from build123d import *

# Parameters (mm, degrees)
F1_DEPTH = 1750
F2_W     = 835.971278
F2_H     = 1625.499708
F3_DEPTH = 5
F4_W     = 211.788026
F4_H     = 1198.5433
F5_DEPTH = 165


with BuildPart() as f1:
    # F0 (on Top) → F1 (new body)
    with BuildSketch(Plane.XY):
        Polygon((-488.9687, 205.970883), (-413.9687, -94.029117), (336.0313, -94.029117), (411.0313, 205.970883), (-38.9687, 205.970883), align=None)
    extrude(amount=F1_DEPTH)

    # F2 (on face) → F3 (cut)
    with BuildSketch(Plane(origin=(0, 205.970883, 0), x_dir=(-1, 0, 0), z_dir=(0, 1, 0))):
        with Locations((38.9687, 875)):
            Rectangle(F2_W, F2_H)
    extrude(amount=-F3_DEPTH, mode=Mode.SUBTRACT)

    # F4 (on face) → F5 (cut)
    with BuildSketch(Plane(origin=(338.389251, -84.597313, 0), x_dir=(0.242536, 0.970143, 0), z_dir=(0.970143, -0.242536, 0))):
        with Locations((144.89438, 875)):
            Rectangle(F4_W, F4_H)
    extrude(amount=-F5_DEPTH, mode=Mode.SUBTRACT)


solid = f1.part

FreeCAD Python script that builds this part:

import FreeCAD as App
import Part
import Sketcher

V = App.Vector
Q = App.Units.Quantity

doc = App.newDocument("Part")
body = doc.addObject("PartDesign::Body", "Body")

sketch1 = body.newObject("Sketcher::SketchObject", "Sketch")
sketch1.AttachmentSupport = (doc.getObject("XY_Plane"), [""])
sketch1.MapMode = "FlatFace"
sketch1.addGeometry(Part.LineSegment(V(-489, 206, 0), V(-414, -94, 0)), False)
sketch1.addGeometry(Part.LineSegment(V(-414, -94, 0), V(336, -94, 0)), False)
sketch1.addGeometry(Part.LineSegment(V(336, -94, 0), V(411, 206, 0)), False)
sketch1.addGeometry(Part.LineSegment(V(411, 206, 0), V(-489, 206, 0)), False)
sketch1.addConstraint(Sketcher.Constraint("Coincident", 0, 2, 1, 1))
sketch1.addConstraint(Sketcher.Constraint("Coincident", 1, 2, 2, 1))
sketch1.addConstraint(Sketcher.Constraint("Coincident", 2, 2, 3, 1))
sketch1.addConstraint(Sketcher.Constraint("Coincident", 3, 2, 0, 1))
sketch1.addConstraint(Sketcher.Constraint("Horizontal", 1))
sketch1.addConstraint(Sketcher.Constraint("Horizontal", 3))
sketch1.addConstraint(Sketcher.Constraint("Equal", 0, 2))
sketch1.addConstraint(Sketcher.Constraint("DistanceX", 1, 1, 1, 2, Q("750 mm")))
sketch1.addConstraint(Sketcher.Constraint("DistanceX", 3, 2, 3, 1, Q("900 mm")))
sketch1.addConstraint(Sketcher.Constraint("DistanceY", 1, 2, 2, 2, Q("300 mm")))
sketch1.addConstraint(Sketcher.Constraint("DistanceX", 0, 2, -1, 1, Q("413.9687 mm")))
sketch1.addConstraint(Sketcher.Constraint("DistanceY", 0, 2, -1, 1, Q("94.029117 mm")))
pad1 = body.newObject("PartDesign::Pad", "Pad")
pad1.Profile = sketch1
pad1.Length = 1750

sketch2 = body.newObject("Sketcher::SketchObject", "Sketch001")
sketch2.AttachmentSupport = (doc.getObject("XZ_Plane"), [""])
sketch2.MapMode = "FlatFace"
sketch2.AttachmentOffset = App.Placement(V(0, 0, -205.970883), App.Rotation())
sketch2.addGeometry(Part.LineSegment(V(379, 1688, 0), V(379, 62, 0)), False)
sketch2.addGeometry(Part.LineSegment(V(379, 62, 0), V(-457, 62, 0)), False)
sketch2.addGeometry(Part.LineSegment(V(-457, 62, 0), V(-457, 1688, 0)), False)
sketch2.addGeometry(Part.LineSegment(V(-457, 1688, 0), V(379, 1688, 0)), False)
sketch2.addConstraint(Sketcher.Constraint("Coincident", 0, 2, 1, 1))
sketch2.addConstraint(Sketcher.Constraint("Coincident", 1, 2, 2, 1))
sketch2.addConstraint(Sketcher.Constraint("Coincident", 2, 2, 3, 1))
sketch2.addConstraint(Sketcher.Constraint("Coincident", 3, 2, 0, 1))
sketch2.addConstraint(Sketcher.Constraint("Vertical", 0))
sketch2.addConstraint(Sketcher.Constraint("Horizontal", 1))
sketch2.addConstraint(Sketcher.Constraint("Vertical", 2))
sketch2.addConstraint(Sketcher.Constraint("Horizontal", 3))
sketch2.addConstraint(Sketcher.Constraint("DistanceX", 1, 2, 1, 1, Q("835.971278 mm")))
sketch2.addConstraint(Sketcher.Constraint("DistanceY", 0, 2, 0, 1, Q("1625.499708 mm")))
sketch2.addConstraint(Sketcher.Constraint("DistanceX", -1, 1, 0, 2, Q("379.016939 mm")))
sketch2.addConstraint(Sketcher.Constraint("DistanceY", -1, 1, 0, 2, Q("62.250146 mm")))
pocket1 = body.newObject("PartDesign::Pocket", "Pocket")
pocket1.Profile = sketch2
pocket1.Length = 5
pocket1.Reversed = True

sketch3 = body.newObject("Sketcher::SketchObject", "Sketch002")
sketch3.Placement = App.Placement(V(338.389251, -84.597313, 0), App.Rotation(V(0.24253586, 0.970142441, 0), V(0, 0, 0.999999999), V(0.970142441, -0.24253586, 0), "ZXY"))
sketch3.addGeometry(Part.LineSegment(V(39, 1474, 0), V(39, 276, 0)), False)
sketch3.addGeometry(Part.LineSegment(V(39, 276, 0), V(251, 276, 0)), False)
sketch3.addGeometry(Part.LineSegment(V(251, 276, 0), V(251, 1474, 0)), False)
sketch3.addGeometry(Part.LineSegment(V(251, 1474, 0), V(39, 1474, 0)), False)
sketch3.addConstraint(Sketcher.Constraint("Coincident", 0, 2, 1, 1))
sketch3.addConstraint(Sketcher.Constraint("Coincident", 1, 2, 2, 1))
sketch3.addConstraint(Sketcher.Constraint("Coincident", 2, 2, 3, 1))
sketch3.addConstraint(Sketcher.Constraint("Coincident", 3, 2, 0, 1))
sketch3.addConstraint(Sketcher.Constraint("Vertical", 0))
sketch3.addConstraint(Sketcher.Constraint("Horizontal", 1))
sketch3.addConstraint(Sketcher.Constraint("Vertical", 2))
sketch3.addConstraint(Sketcher.Constraint("Horizontal", 3))
sketch3.addConstraint(Sketcher.Constraint("DistanceY", 0, 2, 0, 1, Q("1198.543298 mm")))
sketch3.addConstraint(Sketcher.Constraint("DistanceX", 1, 1, 1, 2, Q("211.788026 mm")))
sketch3.addConstraint(Sketcher.Constraint("DistanceY", -1, 1, 0, 2, Q("275.72835 mm")))
sketch3.addConstraint(Sketcher.Constraint("DistanceX", -1, 1, 0, 2, Q("39.000367 mm")))
pocket2 = body.newObject("PartDesign::Pocket", "Pocket001")
pocket2.Profile = sketch3
pocket2.Length = 165

doc.recompute()
